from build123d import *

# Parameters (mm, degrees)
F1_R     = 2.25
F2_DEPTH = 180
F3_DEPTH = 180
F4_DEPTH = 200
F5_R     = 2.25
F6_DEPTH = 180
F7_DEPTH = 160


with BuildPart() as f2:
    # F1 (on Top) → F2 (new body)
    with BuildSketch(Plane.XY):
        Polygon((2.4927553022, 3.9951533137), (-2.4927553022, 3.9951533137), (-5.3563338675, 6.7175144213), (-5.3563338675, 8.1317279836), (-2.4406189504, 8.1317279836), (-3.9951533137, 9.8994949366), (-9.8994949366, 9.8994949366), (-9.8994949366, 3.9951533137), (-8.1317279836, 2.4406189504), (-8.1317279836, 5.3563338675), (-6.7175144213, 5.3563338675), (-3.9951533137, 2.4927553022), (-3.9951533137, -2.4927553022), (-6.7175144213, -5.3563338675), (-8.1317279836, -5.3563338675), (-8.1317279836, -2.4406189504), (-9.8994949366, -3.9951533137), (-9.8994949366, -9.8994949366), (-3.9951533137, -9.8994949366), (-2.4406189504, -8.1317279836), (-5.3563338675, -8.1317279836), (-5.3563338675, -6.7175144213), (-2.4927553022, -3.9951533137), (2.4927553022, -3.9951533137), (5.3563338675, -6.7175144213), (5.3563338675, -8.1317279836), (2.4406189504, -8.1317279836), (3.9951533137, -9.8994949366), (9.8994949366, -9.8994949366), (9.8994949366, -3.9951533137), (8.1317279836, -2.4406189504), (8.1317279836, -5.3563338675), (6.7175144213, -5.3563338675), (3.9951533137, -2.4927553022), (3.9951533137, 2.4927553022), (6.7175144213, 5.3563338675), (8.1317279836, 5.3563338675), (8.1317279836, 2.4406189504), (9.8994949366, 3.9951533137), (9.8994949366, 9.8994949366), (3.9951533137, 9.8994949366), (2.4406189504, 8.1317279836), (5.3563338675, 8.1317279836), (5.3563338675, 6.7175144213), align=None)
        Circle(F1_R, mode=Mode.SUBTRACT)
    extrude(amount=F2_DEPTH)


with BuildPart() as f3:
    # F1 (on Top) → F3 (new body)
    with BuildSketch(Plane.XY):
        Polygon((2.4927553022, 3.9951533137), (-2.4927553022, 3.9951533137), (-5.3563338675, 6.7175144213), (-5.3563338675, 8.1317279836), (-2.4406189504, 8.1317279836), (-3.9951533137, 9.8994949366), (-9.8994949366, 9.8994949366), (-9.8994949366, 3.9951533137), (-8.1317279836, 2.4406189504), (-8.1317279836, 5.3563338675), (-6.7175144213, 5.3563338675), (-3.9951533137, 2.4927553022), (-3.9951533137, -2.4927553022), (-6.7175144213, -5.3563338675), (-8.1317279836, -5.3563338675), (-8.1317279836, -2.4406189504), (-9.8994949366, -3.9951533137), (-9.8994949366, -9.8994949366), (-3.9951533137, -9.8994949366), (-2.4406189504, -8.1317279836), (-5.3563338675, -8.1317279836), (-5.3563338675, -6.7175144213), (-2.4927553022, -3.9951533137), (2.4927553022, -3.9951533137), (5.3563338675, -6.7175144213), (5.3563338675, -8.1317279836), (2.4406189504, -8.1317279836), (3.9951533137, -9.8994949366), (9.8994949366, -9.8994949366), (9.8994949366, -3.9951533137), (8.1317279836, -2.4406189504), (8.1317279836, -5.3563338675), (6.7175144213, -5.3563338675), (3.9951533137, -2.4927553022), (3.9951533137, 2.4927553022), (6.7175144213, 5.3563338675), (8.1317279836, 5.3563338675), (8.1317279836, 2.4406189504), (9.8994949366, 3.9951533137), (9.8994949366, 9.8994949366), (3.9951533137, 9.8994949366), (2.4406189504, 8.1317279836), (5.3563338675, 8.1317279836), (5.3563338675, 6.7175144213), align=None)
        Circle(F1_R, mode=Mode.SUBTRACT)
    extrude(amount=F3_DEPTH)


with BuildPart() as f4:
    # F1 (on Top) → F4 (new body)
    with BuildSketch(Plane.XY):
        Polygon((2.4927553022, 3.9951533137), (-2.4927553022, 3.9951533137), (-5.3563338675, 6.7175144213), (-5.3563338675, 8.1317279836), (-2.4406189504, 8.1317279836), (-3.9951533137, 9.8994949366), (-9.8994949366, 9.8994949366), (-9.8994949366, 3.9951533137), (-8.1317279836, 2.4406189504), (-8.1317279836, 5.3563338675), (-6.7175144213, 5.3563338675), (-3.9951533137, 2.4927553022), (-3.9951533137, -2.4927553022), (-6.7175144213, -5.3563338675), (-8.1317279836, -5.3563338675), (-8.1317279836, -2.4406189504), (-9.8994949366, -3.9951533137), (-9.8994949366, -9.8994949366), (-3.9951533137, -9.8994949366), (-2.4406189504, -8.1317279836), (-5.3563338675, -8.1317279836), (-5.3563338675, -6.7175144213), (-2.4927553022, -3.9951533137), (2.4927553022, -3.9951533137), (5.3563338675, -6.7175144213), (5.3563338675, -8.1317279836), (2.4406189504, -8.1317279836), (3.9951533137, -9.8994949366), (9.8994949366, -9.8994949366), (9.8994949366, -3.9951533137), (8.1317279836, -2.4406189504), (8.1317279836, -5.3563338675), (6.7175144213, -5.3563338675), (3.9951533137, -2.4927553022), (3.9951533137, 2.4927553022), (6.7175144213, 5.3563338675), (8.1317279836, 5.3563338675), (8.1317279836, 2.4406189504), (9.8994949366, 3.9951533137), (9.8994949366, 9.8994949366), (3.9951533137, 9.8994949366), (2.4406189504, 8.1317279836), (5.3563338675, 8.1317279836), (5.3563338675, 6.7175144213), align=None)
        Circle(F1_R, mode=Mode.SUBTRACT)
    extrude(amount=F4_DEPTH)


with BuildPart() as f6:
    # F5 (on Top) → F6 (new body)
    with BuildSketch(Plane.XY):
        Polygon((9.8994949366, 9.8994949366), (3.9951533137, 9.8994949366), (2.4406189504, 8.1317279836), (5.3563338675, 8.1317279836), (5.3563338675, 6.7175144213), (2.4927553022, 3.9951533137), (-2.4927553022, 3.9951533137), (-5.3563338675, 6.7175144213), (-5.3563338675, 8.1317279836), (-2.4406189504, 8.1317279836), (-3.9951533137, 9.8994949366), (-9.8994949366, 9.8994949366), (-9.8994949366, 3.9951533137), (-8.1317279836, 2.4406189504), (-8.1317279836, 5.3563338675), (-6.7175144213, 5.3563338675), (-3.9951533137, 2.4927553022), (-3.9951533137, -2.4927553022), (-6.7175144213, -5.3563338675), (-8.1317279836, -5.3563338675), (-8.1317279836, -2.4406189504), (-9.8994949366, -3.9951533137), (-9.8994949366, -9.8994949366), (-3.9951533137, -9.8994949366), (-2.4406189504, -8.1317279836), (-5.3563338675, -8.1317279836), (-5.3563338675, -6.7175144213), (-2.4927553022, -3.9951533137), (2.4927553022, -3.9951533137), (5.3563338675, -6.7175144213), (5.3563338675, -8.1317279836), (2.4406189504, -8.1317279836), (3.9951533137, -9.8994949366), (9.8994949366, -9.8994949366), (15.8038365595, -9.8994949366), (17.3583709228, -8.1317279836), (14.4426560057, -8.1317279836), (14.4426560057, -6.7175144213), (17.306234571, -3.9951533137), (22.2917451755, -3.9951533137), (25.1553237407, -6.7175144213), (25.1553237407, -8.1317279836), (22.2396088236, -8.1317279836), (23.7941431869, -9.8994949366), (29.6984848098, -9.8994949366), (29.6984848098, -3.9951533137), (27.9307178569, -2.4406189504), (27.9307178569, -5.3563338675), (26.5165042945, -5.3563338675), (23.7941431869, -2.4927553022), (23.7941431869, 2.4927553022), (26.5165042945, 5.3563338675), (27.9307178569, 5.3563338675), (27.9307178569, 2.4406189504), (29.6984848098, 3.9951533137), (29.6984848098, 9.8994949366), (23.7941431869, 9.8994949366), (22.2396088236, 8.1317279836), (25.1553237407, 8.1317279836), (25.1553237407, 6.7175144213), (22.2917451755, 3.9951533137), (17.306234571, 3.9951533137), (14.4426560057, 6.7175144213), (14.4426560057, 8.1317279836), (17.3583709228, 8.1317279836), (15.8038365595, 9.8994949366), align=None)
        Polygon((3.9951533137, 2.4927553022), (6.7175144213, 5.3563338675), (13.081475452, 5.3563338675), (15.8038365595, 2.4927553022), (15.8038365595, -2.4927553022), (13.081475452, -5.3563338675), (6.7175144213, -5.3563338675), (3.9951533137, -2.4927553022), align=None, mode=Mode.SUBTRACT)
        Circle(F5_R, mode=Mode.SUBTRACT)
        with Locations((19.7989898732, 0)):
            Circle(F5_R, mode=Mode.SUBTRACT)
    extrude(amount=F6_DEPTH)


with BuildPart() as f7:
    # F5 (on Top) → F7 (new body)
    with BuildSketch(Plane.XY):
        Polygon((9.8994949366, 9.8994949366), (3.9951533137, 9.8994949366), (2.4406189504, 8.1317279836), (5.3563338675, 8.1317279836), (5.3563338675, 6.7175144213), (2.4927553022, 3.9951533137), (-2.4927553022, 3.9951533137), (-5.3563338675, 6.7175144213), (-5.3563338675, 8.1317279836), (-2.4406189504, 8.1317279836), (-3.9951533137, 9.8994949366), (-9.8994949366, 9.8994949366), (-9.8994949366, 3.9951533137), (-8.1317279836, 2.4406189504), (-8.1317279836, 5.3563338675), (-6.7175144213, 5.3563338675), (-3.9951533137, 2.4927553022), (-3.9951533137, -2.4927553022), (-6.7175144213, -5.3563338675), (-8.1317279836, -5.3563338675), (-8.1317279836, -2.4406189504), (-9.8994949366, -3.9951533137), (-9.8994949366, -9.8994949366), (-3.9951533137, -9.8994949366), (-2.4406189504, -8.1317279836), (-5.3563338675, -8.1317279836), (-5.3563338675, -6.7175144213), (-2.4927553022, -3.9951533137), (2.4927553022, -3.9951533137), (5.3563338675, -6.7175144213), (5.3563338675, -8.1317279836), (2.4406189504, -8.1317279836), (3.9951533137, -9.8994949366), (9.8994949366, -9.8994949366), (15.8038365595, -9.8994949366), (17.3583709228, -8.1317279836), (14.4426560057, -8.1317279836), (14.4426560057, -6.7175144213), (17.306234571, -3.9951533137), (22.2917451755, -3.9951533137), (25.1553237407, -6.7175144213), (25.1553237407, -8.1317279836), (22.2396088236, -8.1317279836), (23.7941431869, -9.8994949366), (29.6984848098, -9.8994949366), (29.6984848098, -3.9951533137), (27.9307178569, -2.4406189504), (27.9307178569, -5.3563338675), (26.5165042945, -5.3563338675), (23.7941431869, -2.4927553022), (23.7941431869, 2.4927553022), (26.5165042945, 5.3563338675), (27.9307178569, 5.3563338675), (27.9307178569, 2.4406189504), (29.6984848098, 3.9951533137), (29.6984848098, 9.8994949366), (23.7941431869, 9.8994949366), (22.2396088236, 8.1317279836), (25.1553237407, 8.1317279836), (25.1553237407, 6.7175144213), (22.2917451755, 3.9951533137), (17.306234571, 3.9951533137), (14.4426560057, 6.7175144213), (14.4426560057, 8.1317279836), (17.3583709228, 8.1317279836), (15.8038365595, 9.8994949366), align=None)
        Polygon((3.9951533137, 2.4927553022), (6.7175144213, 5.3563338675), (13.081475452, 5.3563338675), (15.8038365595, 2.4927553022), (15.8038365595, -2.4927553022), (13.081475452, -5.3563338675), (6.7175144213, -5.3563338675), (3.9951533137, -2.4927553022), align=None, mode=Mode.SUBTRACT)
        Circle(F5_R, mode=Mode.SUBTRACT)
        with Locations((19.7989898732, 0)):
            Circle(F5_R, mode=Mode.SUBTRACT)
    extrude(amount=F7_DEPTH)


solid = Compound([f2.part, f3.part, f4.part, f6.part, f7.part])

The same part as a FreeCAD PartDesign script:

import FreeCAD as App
import Part
import Sketcher
from FreeCAD import Vector
Q = App.Units.Quantity


def add_polygon(sketch, points):
    """Adds a closed chain of lines whose ends are joined by coincident constraints."""
    first, n = sketch.GeometryCount, len(points)
    for a, b in zip(points, points[1:] + points[:1]):
        sketch.addGeometry(Part.LineSegment(App.Vector(*a, 0), App.Vector(*b, 0)), False)
    for i in range(n):
        sketch.addConstraint(Sketcher.Constraint("Coincident", first + i, 2, first + (i + 1) % n, 1))

doc = App.newDocument("Part")
body = doc.addObject("PartDesign::Body", "Body")

# Sketch on XY plane
sketch1 = doc.addObject("Sketcher::SketchObject", "Sketch")
body.addObject(sketch1)
sketch1.AttachmentSupport = (doc.XY_Plane, [""])
sketch1.MapMode = "FlatFace"
add_polygon(sketch1, [(2.5, 4), (-2.5, 4), (-5.4, 6.7), (-5.4, 8.1), (-2.4, 8.1), (-4, 9.9), (-9.9, 9.9), (-9.9, 4), (-8.1, 2.4), (-8.1, 5.4), (-6.7, 5.4), (-4, 2.5), (-4, -2.5), (-6.7, -5.4), (-8.1, -5.4), (-8.1, -2.4), (-9.9, -4), (-9.9, -9.9), (-4, -9.9), (-2.4, -8.1), (-5.4, -8.1), (-5.4, -6.7), (-2.5, -4), (2.5, -4), (5.4, -6.7), (5.4, -8.1), (2.4, -8.1), (4, -9.9), (9.9, -9.9), (9.9, -4), (8.1, -2.4), (8.1, -5.4), (6.7, -5.4), (4, -2.5), (4, 2.5), (6.7, 5.4), (8.1, 5.4), (8.1, 2.4), (9.9, 4), (9.9, 9.9), (4, 9.9), (2.4, 8.1), (5.4, 8.1), (5.4, 6.7)])  # lines 0-43
sketch1.addGeometry(Part.Circle(Vector(0, 0, 0), Vector(0, 0, 1), 2.2), False)  # 44
sketch1.addConstraint([
    Sketcher.Constraint("Horizontal", 0),
    Sketcher.Constraint("Vertical", 2),
    Sketcher.Constraint("Horizontal", 3),
    Sketcher.Constraint("Horizontal", 5),
    Sketcher.Constraint("Vertical", 6),
    Sketcher.Constraint("Vertical", 8),
    Sketcher.Constraint("Horizontal", 9),
    Sketcher.Constraint("Vertical", 11),
    Sketcher.Constraint("Horizontal", 13),
    Sketcher.Constraint("Vertical", 14),
    Sketcher.Constraint("Vertical", 16),
    Sketcher.Constraint("Horizontal", 17),
    Sketcher.Constraint("Horizontal", 19),
    Sketcher.Constraint("Vertical", 20),
    Sketcher.Constraint("Horizontal", 22),
    Sketcher.Constraint("Vertical", 24),
    Sketcher.Constraint("Horizontal", 25),
    Sketcher.Constraint("Horizontal", 27),
    Sketcher.Constraint("Vertical", 28),
    Sketcher.Constraint("Vertical", 30),
    Sketcher.Constraint("Horizontal", 31),
    Sketcher.Constraint("Vertical", 33),
    Sketcher.Constraint("Horizontal", 35),
    Sketcher.Constraint("Vertical", 36),
    Sketcher.Constraint("Vertical", 38),
    Sketcher.Constraint("Horizontal", 39),
    Sketcher.Constraint("Horizontal", 41),
    Sketcher.Constraint("Vertical", 42),
    Sketcher.Constraint("Coincident", 44, 3, -1, 1),
    Sketcher.Constraint("Symmetric", 0, 2, 22, 2, -1, 1),
    Sketcher.Constraint("Symmetric", 1, 2, 23, 2, -1, 1),
    Sketcher.Constraint("Symmetric", 3, 2, 25, 2, -1, 1),
    Sketcher.Constraint("Symmetric", 4, 2, 26, 2, -1, 1),
    Sketcher.Constraint("Symmetric", 6, 2, 28, 2, -1, 1),
    Sketcher.Constraint("Symmetric", 7, 2, 29, 2, -1, 1),
    Sketcher.Constraint("Symmetric", 9, 2, 31, 2, -1, 1),
    Sketcher.Constraint("Symmetric", 10, 2, 32, 2, -1, 1),
    Sketcher.Constraint("Symmetric", 12, 2, 34, 2, -1, 1),
    Sketcher.Constraint("Symmetric", 14, 2, 36, 2, -1, 1),
    Sketcher.Constraint("Symmetric", 15, 2, 37, 2, -1, 1),
    Sketcher.Constraint("Symmetric", 17, 2, 39, 2, -1, 1),
    Sketcher.Constraint("Symmetric", 18, 2, 40, 2, -1, 1),
    Sketcher.Constraint("Symmetric", 20, 2, 42, 2, -1, 1),
    Sketcher.Constraint("Symmetric", 20, 2, 23, 2, -2),
    Sketcher.Constraint("Symmetric", 18, 2, 25, 2, -2),
    Sketcher.Constraint("Symmetric", 17, 2, 26, 2, -2),
    Sketcher.Constraint("Symmetric", 15, 2, 28, 2, -2),
    Sketcher.Constraint("Symmetric", 14, 2, 29, 2, -2),
    Sketcher.Constraint("Symmetric", 12, 2, 31, 2, -2),
    Sketcher.Constraint("Perpendicular", 1, 12),
    Sketcher.Constraint("Perpendicular", 4, 15),
    Sketcher.Constraint("Perpendicular", 10, 21),
    Sketcher.Constraint("Perpendicular", 23, 34),
    Sketcher.Constraint("Perpendicular", 32, 43),
    Sketcher.Constraint("Horizontal", 0, 2, 6, 2),
    Sketcher.Constraint("Horizontal", 11, 2, 32, 2),
    Sketcher.Constraint("Vertical", 4, 2, 10, 2),
    Sketcher.Constraint("Equal", 35, 2),
    Sketcher.Constraint("Equal", 39, 6),
    Sketcher.Constraint("Equal", 41, 8),
    Sketcher.Constraint("Equal", 22, 11),
    Sketcher.Constraint("Equal", 4, 7),
    Sketcher.Constraint("Diameter", 44, Q("4.5 mm")),
    Sketcher.Constraint("DistanceX", 0, 2, 0, 1, Q("4.985511 mm")),
    Sketcher.Constraint("DistanceX", 5, 2, 5, 1, Q("5.904342 mm")),
    Sketcher.Constraint("DistanceX", 4, 2, 0, 2, Q("1.502398 mm")),
    Sketcher.Constraint("DistanceX", 3, 1, 3, 2, Q("2.915715 mm")),
    Sketcher.Constraint("DistanceX", 9, 1, 9, 2, Q("1.414214 mm")),
    Sketcher.Constraint("DistanceX", 3, 2, -1, 1, Q("2.440619 mm")),
    Sketcher.Constraint("DistanceY", 0, 2, 1, 2, Q("2.722361 mm")),
])
pad1 = doc.addObject("PartDesign::Pad", "Pad")
body.addObject(pad1)
pad1.Profile = sketch1
pad1.Length = 180
body2 = doc.addObject("PartDesign::Body", "Body001")

# Sketch on XY plane
sketch2 = doc.addObject("Sketcher::SketchObject", "Sketch001")
body2.addObject(sketch2)
sketch2.AttachmentSupport = (doc.getObject("XY_Plane001"), [""])
sketch2.MapMode = "FlatFace"
add_polygon(sketch2, [(2.5, 4), (-2.5, 4), (-5.4, 6.7), (-5.4, 8.1), (-2.4, 8.1), (-4, 9.9), (-9.9, 9.9), (-9.9, 4), (-8.1, 2.4), (-8.1, 5.4), (-6.7, 5.4), (-4, 2.5), (-4, -2.5), (-6.7, -5.4), (-8.1, -5.4), (-8.1, -2.4), (-9.9, -4), (-9.9, -9.9), (-4, -9.9), (-2.4, -8.1), (-5.4, -8.1), (-5.4, -6.7), (-2.5, -4), (2.5, -4), (5.4, -6.7), (5.4, -8.1), (2.4, -8.1), (4, -9.9), (9.9, -9.9), (9.9, -4), (8.1, -2.4), (8.1, -5.4), (6.7, -5.4), (4, -2.5), (4, 2.5), (6.7, 5.4), (8.1, 5.4), (8.1, 2.4), (9.9, 4), (9.9, 9.9), (4, 9.9), (2.4, 8.1), (5.4, 8.1), (5.4, 6.7)])  # lines 0-43
sketch2.addGeometry(Part.Circle(Vector(0, 0, 0), Vector(0, 0, 1), 2.2), False)  # 44
sketch2.addConstraint([
    Sketcher.Constraint("Horizontal", 0),
    Sketcher.Constraint("Vertical", 2),
    Sketcher.Constraint("Horizontal", 3),
    Sketcher.Constraint("Horizontal", 5),
    Sketcher.Constraint("Vertical", 6),
    Sketcher.Constraint("Vertical", 8),
    Sketcher.Constraint("Horizontal", 9),
    Sketcher.Constraint("Vertical", 11),
    Sketcher.Constraint("Horizontal", 13),
    Sketcher.Constraint("Vertical", 14),
    Sketcher.Constraint("Vertical", 16),
    Sketcher.Constraint("Horizontal", 17),
    Sketcher.Constraint("Horizontal", 19),
    Sketcher.Constraint("Vertical", 20),
    Sketcher.Constraint("Horizontal", 22),
    Sketcher.Constraint("Vertical", 24),
    Sketcher.Constraint("Horizontal", 25),
    Sketcher.Constraint("Horizontal", 27),
    Sketcher.Constraint("Vertical", 28),
    Sketcher.Constraint("Vertical", 30),
    Sketcher.Constraint("Horizontal", 31),
    Sketcher.Constraint("Vertical", 33),
    Sketcher.Constraint("Horizontal", 35),
    Sketcher.Constraint("Vertical", 36),
    Sketcher.Constraint("Vertical", 38),
    Sketcher.Constraint("Horizontal", 39),
    Sketcher.Constraint("Horizontal", 41),
    Sketcher.Constraint("Vertical", 42),
    Sketcher.Constraint("Coincident", 44, 3, -1, 1),
    Sketcher.Constraint("Symmetric", 0, 2, 22, 2, -1, 1),
    Sketcher.Constraint("Symmetric", 1, 2, 23, 2, -1, 1),
    Sketcher.Constraint("Symmetric", 3, 2, 25, 2, -1, 1),
    Sketcher.Constraint("Symmetric", 4, 2, 26, 2, -1, 1),
    Sketcher.Constraint("Symmetric", 6, 2, 28, 2, -1, 1),
    Sketcher.Constraint("Symmetric", 7, 2, 29, 2, -1, 1),
    Sketcher.Constraint("Symmetric", 9, 2, 31, 2, -1, 1),
    Sketcher.Constraint("Symmetric", 10, 2, 32, 2, -1, 1),
    Sketcher.Constraint("Symmetric", 12, 2, 34, 2, -1, 1),
    Sketcher.Constraint("Symmetric", 14, 2, 36, 2, -1, 1),
    Sketcher.Constraint("Symmetric", 15, 2, 37, 2, -1, 1),
    Sketcher.Constraint("Symmetric", 17, 2, 39, 2, -1, 1),
    Sketcher.Constraint("Symmetric", 18, 2, 40, 2, -1, 1),
    Sketcher.Constraint("Symmetric", 20, 2, 42, 2, -1, 1),
    Sketcher.Constraint("Symmetric", 20, 2, 23, 2, -2),
    Sketcher.Constraint("Symmetric", 18, 2, 25, 2, -2),
    Sketcher.Constraint("Symmetric", 17, 2, 26, 2, -2),
    Sketcher.Constraint("Symmetric", 15, 2, 28, 2, -2),
    Sketcher.Constraint("Symmetric", 14, 2, 29, 2, -2),
    Sketcher.Constraint("Symmetric", 12, 2, 31, 2, -2),
    Sketcher.Constraint("Perpendicular", 1, 12),
    Sketcher.Constraint("Perpendicular", 4, 15),
    Sketcher.Constraint("Perpendicular", 10, 21),
    Sketcher.Constraint("Perpendicular", 23, 34),
    Sketcher.Constraint("Perpendicular", 32, 43),
    Sketcher.Constraint("Horizontal", 0, 2, 6, 2),
    Sketcher.Constraint("Horizontal", 11, 2, 32, 2),
    Sketcher.Constraint("Vertical", 4, 2, 10, 2),
    Sketcher.Constraint("Equal", 35, 2),
    Sketcher.Constraint("Equal", 39, 6),
    Sketcher.Constraint("Equal", 41, 8),
    Sketcher.Constraint("Equal", 22, 11),
    Sketcher.Constraint("Equal", 4, 7),
    Sketcher.Constraint("Diameter", 44, Q("4.5 mm")),
    Sketcher.Constraint("DistanceX", 0, 2, 0, 1, Q("4.985511 mm")),
    Sketcher.Constraint("DistanceX", 5, 2, 5, 1, Q("5.904342 mm")),
    Sketcher.Constraint("DistanceX", 4, 2, 0, 2, Q("1.502398 mm")),
    Sketcher.Constraint("DistanceX", 3, 1, 3, 2, Q("2.915715 mm")),
    Sketcher.Constraint("DistanceX", 9, 1, 9, 2, Q("1.414214 mm")),
    Sketcher.Constraint("DistanceX", 3, 2, -1, 1, Q("2.440619 mm")),
    Sketcher.Constraint("DistanceY", 0, 2, 1, 2, Q("2.722361 mm")),
])
pad2 = doc.addObject("PartDesign::Pad", "Pad001")
body2.addObject(pad2)
pad2.Profile = sketch2
pad2.Length = 180
body3 = doc.addObject("PartDesign::Body", "Body002")

# Sketch on XY plane
sketch3 = doc.addObject("Sketcher::SketchObject", "Sketch002")
body3.addObject(sketch3)
sketch3.AttachmentSupport = (doc.getObject("XY_Plane002"), [""])
sketch3.MapMode = "FlatFace"
add_polygon(sketch3, [(2.5, 4), (-2.5, 4), (-5.4, 6.7), (-5.4, 8.1), (-2.4, 8.1), (-4, 9.9), (-9.9, 9.9), (-9.9, 4), (-8.1, 2.4), (-8.1, 5.4), (-6.7, 5.4), (-4, 2.5), (-4, -2.5), (-6.7, -5.4), (-8.1, -5.4), (-8.1, -2.4), (-9.9, -4), (-9.9, -9.9), (-4, -9.9), (-2.4, -8.1), (-5.4, -8.1), (-5.4, -6.7), (-2.5, -4), (2.5, -4), (5.4, -6.7), (5.4, -8.1), (2.4, -8.1), (4, -9.9), (9.9, -9.9), (9.9, -4), (8.1, -2.4), (8.1, -5.4), (6.7, -5.4), (4, -2.5), (4, 2.5), (6.7, 5.4), (8.1, 5.4), (8.1, 2.4), (9.9, 4), (9.9, 9.9), (4, 9.9), (2.4, 8.1), (5.4, 8.1), (5.4, 6.7)])  # lines 0-43
sketch3.addGeometry(Part.Circle(Vector(0, 0, 0), Vector(0, 0, 1), 2.2), False)  # 44
sketch3.addConstraint([
    Sketcher.Constraint("Horizontal", 0),
    Sketcher.Constraint("Vertical", 2),
    Sketcher.Constraint("Horizontal", 3),
    Sketcher.Constraint("Horizontal", 5),
    Sketcher.Constraint("Vertical", 6),
    Sketcher.Constraint("Vertical", 8),
    Sketcher.Constraint("Horizontal", 9),
    Sketcher.Constraint("Vertical", 11),
    Sketcher.Constraint("Horizontal", 13),
    Sketcher.Constraint("Vertical", 14),
    Sketcher.Constraint("Vertical", 16),
    Sketcher.Constraint("Horizontal", 17),
    Sketcher.Constraint("Horizontal", 19),
    Sketcher.Constraint("Vertical", 20),
    Sketcher.Constraint("Horizontal", 22),
    Sketcher.Constraint("Vertical", 24),
    Sketcher.Constraint("Horizontal", 25),
    Sketcher.Constraint("Horizontal", 27),
    Sketcher.Constraint("Vertical", 28),
    Sketcher.Constraint("Vertical", 30),
    Sketcher.Constraint("Horizontal", 31),
    Sketcher.Constraint("Vertical", 33),
    Sketcher.Constraint("Horizontal", 35),
    Sketcher.Constraint("Vertical", 36),
    Sketcher.Constraint("Vertical", 38),
    Sketcher.Constraint("Horizontal", 39),
    Sketcher.Constraint("Horizontal", 41),
    Sketcher.Constraint("Vertical", 42),
    Sketcher.Constraint("Coincident", 44, 3, -1, 1),
    Sketcher.Constraint("Symmetric", 0, 2, 22, 2, -1, 1),
    Sketcher.Constraint("Symmetric", 1, 2, 23, 2, -1, 1),
    Sketcher.Constraint("Symmetric", 3, 2, 25, 2, -1, 1),
    Sketcher.Constraint("Symmetric", 4, 2, 26, 2, -1, 1),
    Sketcher.Constraint("Symmetric", 6, 2, 28, 2, -1, 1),
    Sketcher.Constraint("Symmetric", 7, 2, 29, 2, -1, 1),
    Sketcher.Constraint("Symmetric", 9, 2, 31, 2, -1, 1),
    Sketcher.Constraint("Symmetric", 10, 2, 32, 2, -1, 1),
    Sketcher.Constraint("Symmetric", 12, 2, 34, 2, -1, 1),
    Sketcher.Constraint("Symmetric", 14, 2, 36, 2, -1, 1),
    Sketcher.Constraint("Symmetric", 15, 2, 37, 2, -1, 1),
    Sketcher.Constraint("Symmetric", 17, 2, 39, 2, -1, 1),
    Sketcher.Constraint("Symmetric", 18, 2, 40, 2, -1, 1),
    Sketcher.Constraint("Symmetric", 20, 2, 42, 2, -1, 1),
    Sketcher.Constraint("Symmetric", 20, 2, 23, 2, -2),
    Sketcher.Constraint("Symmetric", 18, 2, 25, 2, -2),
    Sketcher.Constraint("Symmetric", 17, 2, 26, 2, -2),
    Sketcher.Constraint("Symmetric", 15, 2, 28, 2, -2),
    Sketcher.Constraint("Symmetric", 14, 2, 29, 2, -2),
    Sketcher.Constraint("Symmetric", 12, 2, 31, 2, -2),
    Sketcher.Constraint("Perpendicular", 1, 12),
    Sketcher.Constraint("Perpendicular", 4, 15),
    Sketcher.Constraint("Perpendicular", 10, 21),
    Sketcher.Constraint("Perpendicular", 23, 34),
    Sketcher.Constraint("Perpendicular", 32, 43),
    Sketcher.Constraint("Horizontal", 0, 2, 6, 2),
    Sketcher.Constraint("Horizontal", 11, 2, 32, 2),
    Sketcher.Constraint("Vertical", 4, 2, 10, 2),
    Sketcher.Constraint("Equal", 35, 2),
    Sketcher.Constraint("Equal", 39, 6),
    Sketcher.Constraint("Equal", 41, 8),
    Sketcher.Constraint("Equal", 22, 11),
    Sketcher.Constraint("Equal", 4, 7),
    Sketcher.Constraint("Diameter", 44, Q("4.5 mm")),
    Sketcher.Constraint("DistanceX", 0, 2, 0, 1, Q("4.985511 mm")),
    Sketcher.Constraint("DistanceX", 5, 2, 5, 1, Q("5.904342 mm")),
    Sketcher.Constraint("DistanceX", 4, 2, 0, 2, Q("1.502398 mm")),
    Sketcher.Constraint("DistanceX", 3, 1, 3, 2, Q("2.915715 mm")),
    Sketcher.Constraint("DistanceX", 9, 1, 9, 2, Q("1.414214 mm")),
    Sketcher.Constraint("DistanceX", 3, 2, -1, 1, Q("2.440619 mm")),
    Sketcher.Constraint("DistanceY", 0, 2, 1, 2, Q("2.722361 mm")),
])
pad3 = doc.addObject("PartDesign::Pad", "Pad002")
body3.addObject(pad3)
pad3.Profile = sketch3
pad3.Length = 200
body4 = doc.addObject("PartDesign::Body", "Body003")

# Sketch on XY plane
sketch4 = doc.addObject("Sketcher::SketchObject", "Sketch003")
body4.addObject(sketch4)
sketch4.AttachmentSupport = (doc.getObject("XY_Plane003"), [""])
sketch4.MapMode = "FlatFace"
add_polygon(sketch4, [(4, 9.9), (2.4, 8.1), (5.4, 8.1), (5.4, 6.7), (2.5, 4), (-2.5, 4), (-5.4, 6.7), (-5.4, 8.1), (-2.4, 8.1), (-4, 9.9), (-9.9, 9.9), (-9.9, 4), (-8.1, 2.4), (-8.1, 5.4), (-6.7, 5.4), (-4, 2.5), (-4, -2.5), (-6.7, -5.4), (-8.1, -5.4), (-8.1, -2.4), (-9.9, -4), (-9.9, -9.9), (-4, -9.9), (-2.4, -8.1), (-5.4, -8.1), (-5.4, -6.7), (-2.5, -4), (2.5, -4), (5.4, -6.7), (5.4, -8.1), (2.4, -8.1), (4, -9.9), (15.8, -9.9), (17.4, -8.1), (14.4, -8.1), (14.4, -6.7), (17.3, -4), (22.3, -4), (25.2, -6.7), (25.2, -8.1), (22.2, -8.1), (23.8, -9.9), (29.7, -9.9), (29.7, -4), (27.9, -2.4), (27.9, -5.4), (26.5, -5.4), (23.8, -2.5), (23.8, 2.5), (26.5, 5.4), (27.9, 5.4), (27.9, 2.4), (29.7, 4), (29.7, 9.9), (23.8, 9.9), (22.2, 8.1), (25.2, 8.1), (25.2, 6.7), (22.3, 4), (17.3, 4), (14.4, 6.7), (14.4, 8.1), (17.4, 8.1), (15.8, 9.9)])  # lines 0-63
sketch4.addGeometry(Part.Circle(Vector(0, 0, 0), Vector(0, 0, 1), 2.2), False)  # 64
add_polygon(sketch4, [(4, -2.5), (4, 2.5), (6.7, 5.4), (13.1, 5.4), (15.8, 2.5), (15.8, -2.5), (13.1, -5.4), (6.7, -5.4)])  # lines 65-72
sketch4.addGeometry(Part.Circle(Vector(19.8, 0, 0), Vector(0, 0, 1), 2.2), False)  # 73
sketch4.addConstraint([
    Sketcher.Constraint("Horizontal", 1),
    Sketcher.Constraint("Vertical", 2),
    Sketcher.Constraint("Horizontal", 4),
    Sketcher.Constraint("Vertical", 6),
    Sketcher.Constraint("Horizontal", 7),
    Sketcher.Constraint("Horizontal", 9),
    Sketcher.Constraint("Vertical", 10),
    Sketcher.Constraint("Vertical", 12),
    Sketcher.Constraint("Horizontal", 13),
    Sketcher.Constraint("Vertical", 15),
    Sketcher.Constraint("Horizontal", 17),
    Sketcher.Constraint("Vertical", 18),
    Sketcher.Constraint("Vertical", 20),
    Sketcher.Constraint("Horizontal", 21),
    Sketcher.Constraint("Horizontal", 23),
    Sketcher.Constraint("Vertical", 24),
    Sketcher.Constraint("Horizontal", 26),
    Sketcher.Constraint("Vertical", 28),
    Sketcher.Constraint("Horizontal", 29),
    Sketcher.Constraint("Horizontal", 31),
    Sketcher.Constraint("Horizontal", 33),
    Sketcher.Constraint("Vertical", 34),
    Sketcher.Constraint("Horizontal", 36),
    Sketcher.Constraint("Vertical", 38),
    Sketcher.Constraint("Horizontal", 39),
    Sketcher.Constraint("Horizontal", 41),
    Sketcher.Constraint("Vertical", 42),
    Sketcher.Constraint("Vertical", 44),
    Sketcher.Constraint("Horizontal", 45),
    Sketcher.Constraint("Vertical", 47),
    Sketcher.Constraint("Horizontal", 49),
    Sketcher.Constraint("Vertical", 50),
    Sketcher.Constraint("Vertical", 52),
    Sketcher.Constraint("Horizontal", 53),
    Sketcher.Constraint("Horizontal", 55),
    Sketcher.Constraint("Vertical", 56),
    Sketcher.Constraint("Horizontal", 58),
    Sketcher.Constraint("Vertical", 60),
    Sketcher.Constraint("Horizontal", 61),
    Sketcher.Constraint("Horizontal", 63),
    Sketcher.Constraint("Vertical", 65),
    Sketcher.Constraint("Horizontal", 67),
    Sketcher.Constraint("Vertical", 69),
    Sketcher.Constraint("Horizontal", 71),
    Sketcher.Constraint("Coincident", 64, 3, -1, 1),
    Sketcher.Constraint("Equal", 64, 73),
    Sketcher.Constraint("Symmetric", 0, 2, 22, 2, -1, 1),
    Sketcher.Constraint("Symmetric", 2, 2, 24, 2, -1, 1),
    Sketcher.Constraint("Symmetric", 3, 2, 25, 2, -1, 1),
    Sketcher.Constraint("Symmetric", 5, 2, 27, 2, -1, 1),
    Sketcher.Constraint("Symmetric", 7, 2, 29, 2, -1, 1),
    Sketcher.Constraint("Symmetric", 8, 2, 30, 2, -1, 1),
    Sketcher.Constraint("Symmetric", 21, 2, 63, 2, -1, 1),
    Sketcher.Constraint("Symmetric", 15, 2, 65, 2, -1, 1),
    Sketcher.Constraint("Symmetric", 16, 2, 66, 2, -1, 1),
    Sketcher.Constraint("Symmetric", 13, 2, 71, 2, -1, 1),
    Sketcher.Constraint("Symmetric", 2, 2, 5, 2, -2),
    Sketcher.Constraint("Symmetric", 0, 2, 7, 2, -2),
    Sketcher.Constraint("Symmetric", 21, 2, 30, 2, -2),
    Sketcher.Constraint("Symmetric", 13, 2, 66, 2, -2),
    Sketcher.Constraint("Symmetric", 11, 2, 18, 2, -1),
    Sketcher.Constraint("Symmetric", 10, 2, 19, 2, -1),
    Sketcher.Constraint("Symmetric", 45, 2, 48, 2, -1),
    Sketcher.Constraint("Symmetric", 43, 2, 50, 2, -1),
    Sketcher.Constraint("Symmetric", 42, 2, 51, 2, -1),
    Sketcher.Constraint("Symmetric", 40, 2, 53, 2, -1),
    Sketcher.Constraint("Symmetric", 39, 2, 54, 2, -1),
    Sketcher.Constraint("Symmetric", 37, 2, 56, 2, -1),
    Sketcher.Constraint("Symmetric", 36, 2, 57, 2, -1),
    Sketcher.Constraint("Symmetric", 34, 2, 59, 2, -1),
    Sketcher.Constraint("Symmetric", 32, 2, 61, 2, -1),
    Sketcher.Constraint("PointOnObject", 73, 3, -1),
    Sketcher.Constraint("Perpendicular", 0, 11),
    Sketcher.Constraint("Perpendicular", 3, 14),
    Sketcher.Constraint("Perpendicular", 5, 16),
    Sketcher.Constraint("Perpendicular", 16, 27),
    Sketcher.Constraint("Parallel", 22, 32),
    Sketcher.Constraint("Parallel", 25, 35),
    Sketcher.Constraint("Parallel", 27, 37),
    Sketcher.Constraint("Parallel", 30, 40),
    Sketcher.Constraint("Perpendicular", 32, 43),
    Sketcher.Constraint("Perpendicular", 35, 46),
    Sketcher.Constraint("Perpendicular", 37, 48),
    Sketcher.Constraint("Perpendicular", 46, 57),
    Sketcher.Constraint("Perpendicular", 48, 59),
    Sketcher.Constraint("Perpendicular", 51, 62),
    Sketcher.Constraint("Perpendicular", 57, 68),
    Sketcher.Constraint("Parallel", 66, 70),
    Sketcher.Constraint("Parallel", 68, 72),
    Sketcher.Constraint("Horizontal", 4, 2, 10, 2),
    Sketcher.Constraint("Horizontal", 29, 2, 32, 2),
    Sketcher.Constraint("Horizontal", 27, 2, 34, 2),
    Sketcher.Constraint("Horizontal", 26, 2, 35, 2),
    Sketcher.Constraint("Horizontal", 34, 2, 37, 2),
    Sketcher.Constraint("Horizontal", 33, 2, 38, 2),
    Sketcher.Constraint("Horizontal", 31, 2, 40, 2),
    Sketcher.Constraint("Horizontal", 36, 2, 42, 2),
    Sketcher.Constraint("Horizontal", 18, 2, 43, 2),
    Sketcher.Constraint("Horizontal", 17, 2, 44, 2),
    Sketcher.Constraint("Horizontal", 15, 2, 46, 2),
    Sketcher.Constraint("Horizontal", 65, 2, 68, 2),
    Sketcher.Constraint("Horizontal", 46, 2, 69, 2),
    Sketcher.Constraint("Vertical", 8, 2, 14, 2),
    Sketcher.Constraint("Vertical", 40, 2, 46, 2),
    Sketcher.Constraint("Vertical", 62, 2, 68, 2),
    Sketcher.Constraint("Equal", 29, 33),
    Sketcher.Constraint("Equal", 26, 36),
    Sketcher.Constraint("Equal", 33, 39),
    Sketcher.Constraint("Equal", 21, 41),
    Sketcher.Constraint("Equal", 49, 2),
    Sketcher.Constraint("Equal", 53, 10),
    Sketcher.Constraint("Equal", 61, 12),
    Sketcher.Constraint("Equal", 58, 15),
    Sketcher.Constraint("Equal", 8, 11),
    Sketcher.Constraint("Diameter", 64, Q("4.5 mm")),
    Sketcher.Constraint("DistanceX", 4, 2, 4, 1, Q("4.985511 mm")),
    Sketcher.Constraint("DistanceX", 9, 2, 9, 1, Q("5.904342 mm")),
    Sketcher.Constraint("DistanceX", 67, 1, 67, 2, Q("6.363961 mm")),
    Sketcher.Constraint("DistanceX", 1, 1, 1, 2, Q("2.915715 mm")),
    Sketcher.Constraint("DistanceX", 13, 1, 13, 2, Q("1.414214 mm")),
    Sketcher.Constraint("DistanceX", 31, 1, 31, 2, Q("11.808683 mm")),
    Sketcher.Constraint("DistanceX", -1, 1, 73, 3, Q("19.79899 mm")),
    Sketcher.Constraint("DistanceX", -1, 1, 0, 2, Q("2.440619 mm")),
    Sketcher.Constraint("DistanceX", -1, 1, 32, 2, Q("17.358371 mm")),
])
pad4 = doc.addObject("PartDesign::Pad", "Pad003")
body4.addObject(pad4)
pad4.Profile = sketch4
pad4.Length = 180
body5 = doc.addObject("PartDesign::Body", "Body004")

# Sketch on XY plane
sketch5 = doc.addObject("Sketcher::SketchObject", "Sketch004")
body5.addObject(sketch5)
sketch5.AttachmentSupport = (doc.getObject("XY_Plane004"), [""])
sketch5.MapMode = "FlatFace"
add_polygon(sketch5, [(4, 9.9), (2.4, 8.1), (5.4, 8.1), (5.4, 6.7), (2.5, 4), (-2.5, 4), (-5.4, 6.7), (-5.4, 8.1), (-2.4, 8.1), (-4, 9.9), (-9.9, 9.9), (-9.9, 4), (-8.1, 2.4), (-8.1, 5.4), (-6.7, 5.4), (-4, 2.5), (-4, -2.5), (-6.7, -5.4), (-8.1, -5.4), (-8.1, -2.4), (-9.9, -4), (-9.9, -9.9), (-4, -9.9), (-2.4, -8.1), (-5.4, -8.1), (-5.4, -6.7), (-2.5, -4), (2.5, -4), (5.4, -6.7), (5.4, -8.1), (2.4, -8.1), (4, -9.9), (15.8, -9.9), (17.4, -8.1), (14.4, -8.1), (14.4, -6.7), (17.3, -4), (22.3, -4), (25.2, -6.7), (25.2, -8.1), (22.2, -8.1), (23.8, -9.9), (29.7, -9.9), (29.7, -4), (27.9, -2.4), (27.9, -5.4), (26.5, -5.4), (23.8, -2.5), (23.8, 2.5), (26.5, 5.4), (27.9, 5.4), (27.9, 2.4), (29.7, 4), (29.7, 9.9), (23.8, 9.9), (22.2, 8.1), (25.2, 8.1), (25.2, 6.7), (22.3, 4), (17.3, 4), (14.4, 6.7), (14.4, 8.1), (17.4, 8.1), (15.8, 9.9)])  # lines 0-63
sketch5.addGeometry(Part.Circle(Vector(0, 0, 0), Vector(0, 0, 1), 2.2), False)  # 64
add_polygon(sketch5, [(4, -2.5), (4, 2.5), (6.7, 5.4), (13.1, 5.4), (15.8, 2.5), (15.8, -2.5), (13.1, -5.4), (6.7, -5.4)])  # lines 65-72
sketch5.addGeometry(Part.Circle(Vector(19.8, 0, 0), Vector(0, 0, 1), 2.2), False)  # 73
sketch5.addConstraint([
    Sketcher.Constraint("Horizontal", 1),
    Sketcher.Constraint("Vertical", 2),
    Sketcher.Constraint("Horizontal", 4),
    Sketcher.Constraint("Vertical", 6),
    Sketcher.Constraint("Horizontal", 7),
    Sketcher.Constraint("Horizontal", 9),
    Sketcher.Constraint("Vertical", 10),
    Sketcher.Constraint("Vertical", 12),
    Sketcher.Constraint("Horizontal", 13),
    Sketcher.Constraint("Vertical", 15),
    Sketcher.Constraint("Horizontal", 17),
    Sketcher.Constraint("Vertical", 18),
    Sketcher.Constraint("Vertical", 20),
    Sketcher.Constraint("Horizontal", 21),
    Sketcher.Constraint("Horizontal", 23),
    Sketcher.Constraint("Vertical", 24),
    Sketcher.Constraint("Horizontal", 26),
    Sketcher.Constraint("Vertical", 28),
    Sketcher.Constraint("Horizontal", 29),
    Sketcher.Constraint("Horizontal", 31),
    Sketcher.Constraint("Horizontal", 33),
    Sketcher.Constraint("Vertical", 34),
    Sketcher.Constraint("Horizontal", 36),
    Sketcher.Constraint("Vertical", 38),
    Sketcher.Constraint("Horizontal", 39),
    Sketcher.Constraint("Horizontal", 41),
    Sketcher.Constraint("Vertical", 42),
    Sketcher.Constraint("Vertical", 44),
    Sketcher.Constraint("Horizontal", 45),
    Sketcher.Constraint("Vertical", 47),
    Sketcher.Constraint("Horizontal", 49),
    Sketcher.Constraint("Vertical", 50),
    Sketcher.Constraint("Vertical", 52),
    Sketcher.Constraint("Horizontal", 53),
    Sketcher.Constraint("Horizontal", 55),
    Sketcher.Constraint("Vertical", 56),
    Sketcher.Constraint("Horizontal", 58),
    Sketcher.Constraint("Vertical", 60),
    Sketcher.Constraint("Horizontal", 61),
    Sketcher.Constraint("Horizontal", 63),
    Sketcher.Constraint("Vertical", 65),
    Sketcher.Constraint("Horizontal", 67),
    Sketcher.Constraint("Vertical", 69),
    Sketcher.Constraint("Horizontal", 71),
    Sketcher.Constraint("Coincident", 64, 3, -1, 1),
    Sketcher.Constraint("Equal", 64, 73),
    Sketcher.Constraint("Symmetric", 0, 2, 22, 2, -1, 1),
    Sketcher.Constraint("Symmetric", 2, 2, 24, 2, -1, 1),
    Sketcher.Constraint("Symmetric", 3, 2, 25, 2, -1, 1),
    Sketcher.Constraint("Symmetric", 5, 2, 27, 2, -1, 1),
    Sketcher.Constraint("Symmetric", 7, 2, 29, 2, -1, 1),
    Sketcher.Constraint("Symmetric", 8, 2, 30, 2, -1, 1),
    Sketcher.Constraint("Symmetric", 21, 2, 63, 2, -1, 1),
    Sketcher.Constraint("Symmetric", 15, 2, 65, 2, -1, 1),
    Sketcher.Constraint("Symmetric", 16, 2, 66, 2, -1, 1),
    Sketcher.Constraint("Symmetric", 13, 2, 71, 2, -1, 1),
    Sketcher.Constraint("Symmetric", 2, 2, 5, 2, -2),
    Sketcher.Constraint("Symmetric", 0, 2, 7, 2, -2),
    Sketcher.Constraint("Symmetric", 21, 2, 30, 2, -2),
    Sketcher.Constraint("Symmetric", 13, 2, 66, 2, -2),
    Sketcher.Constraint("Symmetric", 11, 2, 18, 2, -1),
    Sketcher.Constraint("Symmetric", 10, 2, 19, 2, -1),
    Sketcher.Constraint("Symmetric", 45, 2, 48, 2, -1),
    Sketcher.Constraint("Symmetric", 43, 2, 50, 2, -1),
    Sketcher.Constraint("Symmetric", 42, 2, 51, 2, -1),
    Sketcher.Constraint("Symmetric", 40, 2, 53, 2, -1),
    Sketcher.Constraint("Symmetric", 39, 2, 54, 2, -1),
    Sketcher.Constraint("Symmetric", 37, 2, 56, 2, -1),
    Sketcher.Constraint("Symmetric", 36, 2, 57, 2, -1),
    Sketcher.Constraint("Symmetric", 34, 2, 59, 2, -1),
    Sketcher.Constraint("Symmetric", 32, 2, 61, 2, -1),
    Sketcher.Constraint("PointOnObject", 73, 3, -1),
    Sketcher.Constraint("Perpendicular", 0, 11),
    Sketcher.Constraint("Perpendicular", 3, 14),
    Sketcher.Constraint("Perpendicular", 5, 16),
    Sketcher.Constraint("Perpendicular", 16, 27),
    Sketcher.Constraint("Parallel", 22, 32),
    Sketcher.Constraint("Parallel", 25, 35),
    Sketcher.Constraint("Parallel", 27, 37),
    Sketcher.Constraint("Parallel", 30, 40),
    Sketcher.Constraint("Perpendicular", 32, 43),
    Sketcher.Constraint("Perpendicular", 35, 46),
    Sketcher.Constraint("Perpendicular", 37, 48),
    Sketcher.Constraint("Perpendicular", 46, 57),
    Sketcher.Constraint("Perpendicular", 48, 59),
    Sketcher.Constraint("Perpendicular", 51, 62),
    Sketcher.Constraint("Perpendicular", 57, 68),
    Sketcher.Constraint("Parallel", 66, 70),
    Sketcher.Constraint("Parallel", 68, 72),
    Sketcher.Constraint("Horizontal", 4, 2, 10, 2),
    Sketcher.Constraint("Horizontal", 29, 2, 32, 2),
    Sketcher.Constraint("Horizontal", 27, 2, 34, 2),
    Sketcher.Constraint("Horizontal", 26, 2, 35, 2),
    Sketcher.Constraint("Horizontal", 34, 2, 37, 2),
    Sketcher.Constraint("Horizontal", 33, 2, 38, 2),
    Sketcher.Constraint("Horizontal", 31, 2, 40, 2),
    Sketcher.Constraint("Horizontal", 36, 2, 42, 2),
    Sketcher.Constraint("Horizontal", 18, 2, 43, 2),
    Sketcher.Constraint("Horizontal", 17, 2, 44, 2),
    Sketcher.Constraint("Horizontal", 15, 2, 46, 2),
    Sketcher.Constraint("Horizontal", 65, 2, 68, 2),
    Sketcher.Constraint("Horizontal", 46, 2, 69, 2),
    Sketcher.Constraint("Vertical", 8, 2, 14, 2),
    Sketcher.Constraint("Vertical", 40, 2, 46, 2),
    Sketcher.Constraint("Vertical", 62, 2, 68, 2),
    Sketcher.Constraint("Equal", 29, 33),
    Sketcher.Constraint("Equal", 26, 36),
    Sketcher.Constraint("Equal", 33, 39),
    Sketcher.Constraint("Equal", 21, 41),
    Sketcher.Constraint("Equal", 49, 2),
    Sketcher.Constraint("Equal", 53, 10),
    Sketcher.Constraint("Equal", 61, 12),
    Sketcher.Constraint("Equal", 58, 15),
    Sketcher.Constraint("Equal", 8, 11),
    Sketcher.Constraint("Diameter", 64, Q("4.5 mm")),
    Sketcher.Constraint("DistanceX", 4, 2, 4, 1, Q("4.985511 mm")),
    Sketcher.Constraint("DistanceX", 9, 2, 9, 1, Q("5.904342 mm")),
    Sketcher.Constraint("DistanceX", 67, 1, 67, 2, Q("6.363961 mm")),
    Sketcher.Constraint("DistanceX", 1, 1, 1, 2, Q("2.915715 mm")),
    Sketcher.Constraint("DistanceX", 13, 1, 13, 2, Q("1.414214 mm")),
    Sketcher.Constraint("DistanceX", 31, 1, 31, 2, Q("11.808683 mm")),
    Sketcher.Constraint("DistanceX", -1, 1, 73, 3, Q("19.79899 mm")),
    Sketcher.Constraint("DistanceX", -1, 1, 0, 2, Q("2.440619 mm")),
    Sketcher.Constraint("DistanceX", -1, 1, 32, 2, Q("17.358371 mm")),
])
pad5 = doc.addObject("PartDesign::Pad", "Pad004")
body5.addObject(pad5)
pad5.Profile = sketch5
pad5.Length = 160

doc.recompute()
